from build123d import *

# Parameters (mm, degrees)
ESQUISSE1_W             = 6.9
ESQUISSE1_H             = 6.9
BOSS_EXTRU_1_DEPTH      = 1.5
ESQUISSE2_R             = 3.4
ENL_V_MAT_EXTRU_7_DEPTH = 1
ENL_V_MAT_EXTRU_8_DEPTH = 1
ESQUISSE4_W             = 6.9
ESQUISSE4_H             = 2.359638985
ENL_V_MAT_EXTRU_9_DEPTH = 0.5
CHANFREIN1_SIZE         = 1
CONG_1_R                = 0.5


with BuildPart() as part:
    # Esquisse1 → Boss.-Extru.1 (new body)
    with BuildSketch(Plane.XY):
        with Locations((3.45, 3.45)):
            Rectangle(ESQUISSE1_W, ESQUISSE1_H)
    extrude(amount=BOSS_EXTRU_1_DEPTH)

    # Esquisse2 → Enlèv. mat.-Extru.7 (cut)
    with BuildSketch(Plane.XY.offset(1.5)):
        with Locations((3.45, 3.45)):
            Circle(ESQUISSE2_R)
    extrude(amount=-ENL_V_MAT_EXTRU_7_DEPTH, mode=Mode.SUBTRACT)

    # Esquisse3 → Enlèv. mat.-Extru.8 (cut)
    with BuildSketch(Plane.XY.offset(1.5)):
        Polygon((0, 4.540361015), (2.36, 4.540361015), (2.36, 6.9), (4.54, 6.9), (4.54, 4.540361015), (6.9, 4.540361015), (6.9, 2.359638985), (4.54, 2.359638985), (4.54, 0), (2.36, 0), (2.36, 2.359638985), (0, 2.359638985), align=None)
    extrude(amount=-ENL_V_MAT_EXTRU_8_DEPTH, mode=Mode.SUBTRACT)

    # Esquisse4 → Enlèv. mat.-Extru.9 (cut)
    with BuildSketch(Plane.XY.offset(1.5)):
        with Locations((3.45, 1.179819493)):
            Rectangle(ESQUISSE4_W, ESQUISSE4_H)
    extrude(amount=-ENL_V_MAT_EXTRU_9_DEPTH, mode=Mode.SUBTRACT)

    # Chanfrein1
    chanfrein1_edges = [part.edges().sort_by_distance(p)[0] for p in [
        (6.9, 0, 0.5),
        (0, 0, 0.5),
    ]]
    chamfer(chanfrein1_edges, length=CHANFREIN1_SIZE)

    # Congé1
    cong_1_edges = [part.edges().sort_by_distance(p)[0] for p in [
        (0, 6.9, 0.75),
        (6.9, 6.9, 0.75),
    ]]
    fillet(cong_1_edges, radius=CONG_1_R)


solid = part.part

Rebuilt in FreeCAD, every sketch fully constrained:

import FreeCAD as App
import Part
import Sketcher
from FreeCAD import Vector
Q = App.Units.Quantity


def edges_at(feature, points):
    """Names of the edges that pass closest to the given points."""
    edges = feature.Shape.Edges
    near = lambda p: min(range(len(edges)), key=lambda i: edges[i].distToShape(Part.Vertex(*p))[0])
    return sorted({f"Edge{near(p) + 1}" for p in points})

doc = App.newDocument("Part")
body = doc.addObject("PartDesign::Body", "Body")

sketch1 = doc.addObject("Sketcher::SketchObject", "Sketch")
body.addObject(sketch1)
sketch1.AttachmentSupport = (doc.XY_Plane, [""])
sketch1.MapMode = "FlatFace"
sketch1.addGeometry(Part.LineSegment(Vector(0, 7, 0), Vector(0, 0, 0)), False)
sketch1.addGeometry(Part.LineSegment(Vector(0, 0, 0), Vector(7, 0, 0)), False)
sketch1.addGeometry(Part.LineSegment(Vector(7, 0, 0), Vector(7, 7, 0)), False)
sketch1.addGeometry(Part.LineSegment(Vector(7, 7, 0), Vector(0, 7, 0)), False)
sketch1.addConstraint(Sketcher.Constraint("Coincident", 0, 2, 1, 1))
sketch1.addConstraint(Sketcher.Constraint("Coincident", 1, 2, 2, 1))
sketch1.addConstraint(Sketcher.Constraint("Coincident", 2, 2, 3, 1))
sketch1.addConstraint(Sketcher.Constraint("Coincident", 3, 2, 0, 1))
sketch1.addConstraint(Sketcher.Constraint("Vertical", 0))
sketch1.addConstraint(Sketcher.Constraint("Horizontal", 1))
sketch1.addConstraint(Sketcher.Constraint("Vertical", 2))
sketch1.addConstraint(Sketcher.Constraint("Horizontal", 3))
sketch1.addConstraint(Sketcher.Constraint("Coincident", 0, 2, -1, 1))
sketch1.addConstraint(Sketcher.Constraint("Equal", 3, 0))
sketch1.addConstraint(Sketcher.Constraint("DistanceX", 1, 1, 1, 2, Q("6.9 mm")))
pad1 = doc.addObject("PartDesign::Pad", "Pad")
body.addObject(pad1)
pad1.Profile = sketch1
pad1.Length = 1.5

sketch2 = doc.addObject("Sketcher::SketchObject", "Sketch001")
body.addObject(sketch2)
sketch2.AttachmentSupport = (doc.XY_Plane, [""])
sketch2.MapMode = "FlatFace"
sketch2.AttachmentOffset = App.Placement(Vector(0, 0, 1.5), App.Rotation())
sketch2.addGeometry(Part.Circle(Vector(3.5, 3.5, 0), Vector(0, 0, 1), 3.4), False)
sketch2.addConstraint(Sketcher.Constraint("Diameter", 0, Q("6.8 mm")))
sketch2.addConstraint(Sketcher.Constraint("DistanceX", -1, 1, 0, 3, Q("3.45 mm")))
sketch2.addConstraint(Sketcher.Constraint("DistanceY", -1, 1, 0, 3, Q("3.45 mm")))
pocket1 = doc.addObject("PartDesign::Pocket", "Pocket")
body.addObject(pocket1)
pocket1.Profile = sketch2
pocket1.Length = 1

sketch3 = doc.addObject("Sketcher::SketchObject", "Sketch002")
body.addObject(sketch3)
sketch3.AttachmentSupport = (doc.XY_Plane, [""])
sketch3.MapMode = "FlatFace"
sketch3.AttachmentOffset = App.Placement(Vector(0, 0, 1.5), App.Rotation())
sketch3.addGeometry(Part.LineSegment(Vector(2.4, 4.5, 0), Vector(0, 4.5, 0)), False)
sketch3.addGeometry(Part.LineSegment(Vector(0, 4.5, 0), Vector(0, 2.4, 0)), False)
sketch3.addGeometry(Part.LineSegment(Vector(0, 2.4, 0), Vector(2.4, 2.4, 0)), False)
sketch3.addGeometry(Part.LineSegment(Vector(2.4, 2.4, 0), Vector(2.4, 0, 0)), False)
sketch3.addGeometry(Part.LineSegment(Vector(2.4, 0, 0), Vector(4.5, 0, 0)), False)
sketch3.addGeometry(Part.LineSegment(Vector(4.5, 0, 0), Vector(4.5, 2.4, 0)), False)
sketch3.addGeometry(Part.LineSegment(Vector(4.5, 2.4, 0), Vector(6.9, 2.4, 0)), False)
sketch3.addGeometry(Part.LineSegment(Vector(6.9, 2.4, 0), Vector(6.9, 4.5, 0)), False)
sketch3.addGeometry(Part.LineSegment(Vector(6.9, 4.5, 0), Vector(4.5, 4.5, 0)), False)
sketch3.addGeometry(Part.LineSegment(Vector(4.5, 4.5, 0), Vector(4.5, 6.9, 0)), False)
sketch3.addGeometry(Part.LineSegment(Vector(4.5, 6.9, 0), Vector(2.4, 6.9, 0)), False)
sketch3.addGeometry(Part.LineSegment(Vector(2.4, 6.9, 0), Vector(2.4, 4.5, 0)), False)
sketch3.addConstraint(Sketcher.Constraint("Coincident", 0, 2, 1, 1))
sketch3.addConstraint(Sketcher.Constraint("Coincident", 1, 2, 2, 1))
sketch3.addConstraint(Sketcher.Constraint("Coincident", 2, 2, 3, 1))
sketch3.addConstraint(Sketcher.Constraint("Coincident", 3, 2, 4, 1))
sketch3.addConstraint(Sketcher.Constraint("Coincident", 4, 2, 5, 1))
sketch3.addConstraint(Sketcher.Constraint("Coincident", 5, 2, 6, 1))
sketch3.addConstraint(Sketcher.Constraint("Coincident", 6, 2, 7, 1))
sketch3.addConstraint(Sketcher.Constraint("Coincident", 7, 2, 8, 1))
sketch3.addConstraint(Sketcher.Constraint("Coincident", 8, 2, 9, 1))
sketch3.addConstraint(Sketcher.Constraint("Coincident", 9, 2, 10, 1))
sketch3.addConstraint(Sketcher.Constraint("Coincident", 10, 2, 11, 1))
sketch3.addConstraint(Sketcher.Constraint("Coincident", 11, 2, 0, 1))
sketch3.addConstraint(Sketcher.Constraint("Horizontal", 0))
sketch3.addConstraint(Sketcher.Constraint("Vertical", 1))
sketch3.addConstraint(Sketcher.Constraint("Horizontal", 2))
sketch3.addConstraint(Sketcher.Constraint("Vertical", 3))
sketch3.addConstraint(Sketcher.Constraint("Horizontal", 4))
sketch3.addConstraint(Sketcher.Constraint("Vertical", 5))
sketch3.addConstraint(Sketcher.Constraint("Horizontal", 6))
sketch3.addConstraint(Sketcher.Constraint("Vertical", 7))
sketch3.addConstraint(Sketcher.Constraint("Horizontal", 8))
sketch3.addConstraint(Sketcher.Constraint("Vertical", 9))
sketch3.addConstraint(Sketcher.Constraint("Horizontal", 10))
sketch3.addConstraint(Sketcher.Constraint("Vertical", 11))
sketch3.addConstraint(Sketcher.Constraint("PointOnObject", 0, 2, -2))
sketch3.addConstraint(Sketcher.Constraint("PointOnObject", 3, 2, -1))
sketch3.addConstraint(Sketcher.Constraint("Horizontal", 2, 2, 5, 2))
sketch3.addConstraint(Sketcher.Constraint("Horizontal", 0, 2, 7, 2))
sketch3.addConstraint(Sketcher.Constraint("Vertical", 5, 2, 8, 2))
sketch3.addConstraint(Sketcher.Constraint("Vertical", 3, 2, 10, 2))
sketch3.addConstraint(Sketcher.Constraint("Equal", 2, 6))
sketch3.addConstraint(Sketcher.Constraint("Equal", 5, 9))
sketch3.addConstraint(Sketcher.Constraint("DistanceX", 0, 2, 0, 1, Q("2.36 mm")))
sketch3.addConstraint(Sketcher.Constraint("DistanceX", 4, 1, 4, 2, Q("2.18 mm")))
sketch3.addConstraint(Sketcher.Constraint("DistanceY", -1, 1, 9, 2, Q("6.9 mm")))
sketch3.addConstraint(Sketcher.Constraint("DistanceY", 3, 2, 3, 1, Q("2.359639 mm")))
pocket2 = doc.addObject("PartDesign::Pocket", "Pocket001")
body.addObject(pocket2)
pocket2.Profile = sketch3
pocket2.Length = 1

sketch4 = doc.addObject("Sketcher::SketchObject", "Sketch003")
body.addObject(sketch4)
sketch4.AttachmentSupport = (doc.XY_Plane, [""])
sketch4.MapMode = "FlatFace"
sketch4.AttachmentOffset = App.Placement(Vector(0, 0, 1.5), App.Rotation())
sketch4.addGeometry(Part.LineSegment(Vector(0, 2.4, 0), Vector(0, 0, 0)), False)
sketch4.addGeometry(Part.LineSegment(Vector(0, 0, 0), Vector(6.9, 0, 0)), False)
sketch4.addGeometry(Part.LineSegment(Vector(6.9, 0, 0), Vector(6.9, 2.4, 0)), False)
sketch4.addGeometry(Part.LineSegment(Vector(6.9, 2.4, 0), Vector(0, 2.4, 0)), False)
sketch4.addConstraint(Sketcher.Constraint("Coincident", 0, 2, 1, 1))
sketch4.addConstraint(Sketcher.Constraint("Coincident", 1, 2, 2, 1))
sketch4.addConstraint(Sketcher.Constraint("Coincident", 2, 2, 3, 1))
sketch4.addConstraint(Sketcher.Constraint("Coincident", 3, 2, 0, 1))
sketch4.addConstraint(Sketcher.Constraint("Vertical", 0))
sketch4.addConstraint(Sketcher.Constraint("Horizontal", 1))
sketch4.addConstraint(Sketcher.Constraint("Vertical", 2))
sketch4.addConstraint(Sketcher.Constraint("Horizontal", 3))
sketch4.addConstraint(Sketcher.Constraint("Coincident", 0, 2, -1, 1))
sketch4.addConstraint(Sketcher.Constraint("DistanceX", 1, 1, 1, 2, Q("6.9 mm")))
sketch4.addConstraint(Sketcher.Constraint("DistanceY", 0, 2, 0, 1, Q("2.359639 mm")))
pocket3 = doc.addObject("PartDesign::Pocket", "Pocket002")
body.addObject(pocket3)
pocket3.Profile = sketch4
pocket3.Length = 0.5
doc.recompute()

chamfer = doc.addObject("PartDesign::Chamfer", "Chamfer")
body.addObject(chamfer)
chamfer.Base = (pocket3, edges_at(pocket3, [(6.9, 0, 0.5), (0, 0, 0.5)]))
chamfer.Size = 1
doc.recompute()

fillet = doc.addObject("PartDesign::Fillet", "Fillet")
body.addObject(fillet)
fillet.Base = (chamfer, edges_at(chamfer, [(0, 6.9, 0.75), (6.9, 6.9, 0.75)]))
fillet.Radius = 0.5

doc.recompute()
